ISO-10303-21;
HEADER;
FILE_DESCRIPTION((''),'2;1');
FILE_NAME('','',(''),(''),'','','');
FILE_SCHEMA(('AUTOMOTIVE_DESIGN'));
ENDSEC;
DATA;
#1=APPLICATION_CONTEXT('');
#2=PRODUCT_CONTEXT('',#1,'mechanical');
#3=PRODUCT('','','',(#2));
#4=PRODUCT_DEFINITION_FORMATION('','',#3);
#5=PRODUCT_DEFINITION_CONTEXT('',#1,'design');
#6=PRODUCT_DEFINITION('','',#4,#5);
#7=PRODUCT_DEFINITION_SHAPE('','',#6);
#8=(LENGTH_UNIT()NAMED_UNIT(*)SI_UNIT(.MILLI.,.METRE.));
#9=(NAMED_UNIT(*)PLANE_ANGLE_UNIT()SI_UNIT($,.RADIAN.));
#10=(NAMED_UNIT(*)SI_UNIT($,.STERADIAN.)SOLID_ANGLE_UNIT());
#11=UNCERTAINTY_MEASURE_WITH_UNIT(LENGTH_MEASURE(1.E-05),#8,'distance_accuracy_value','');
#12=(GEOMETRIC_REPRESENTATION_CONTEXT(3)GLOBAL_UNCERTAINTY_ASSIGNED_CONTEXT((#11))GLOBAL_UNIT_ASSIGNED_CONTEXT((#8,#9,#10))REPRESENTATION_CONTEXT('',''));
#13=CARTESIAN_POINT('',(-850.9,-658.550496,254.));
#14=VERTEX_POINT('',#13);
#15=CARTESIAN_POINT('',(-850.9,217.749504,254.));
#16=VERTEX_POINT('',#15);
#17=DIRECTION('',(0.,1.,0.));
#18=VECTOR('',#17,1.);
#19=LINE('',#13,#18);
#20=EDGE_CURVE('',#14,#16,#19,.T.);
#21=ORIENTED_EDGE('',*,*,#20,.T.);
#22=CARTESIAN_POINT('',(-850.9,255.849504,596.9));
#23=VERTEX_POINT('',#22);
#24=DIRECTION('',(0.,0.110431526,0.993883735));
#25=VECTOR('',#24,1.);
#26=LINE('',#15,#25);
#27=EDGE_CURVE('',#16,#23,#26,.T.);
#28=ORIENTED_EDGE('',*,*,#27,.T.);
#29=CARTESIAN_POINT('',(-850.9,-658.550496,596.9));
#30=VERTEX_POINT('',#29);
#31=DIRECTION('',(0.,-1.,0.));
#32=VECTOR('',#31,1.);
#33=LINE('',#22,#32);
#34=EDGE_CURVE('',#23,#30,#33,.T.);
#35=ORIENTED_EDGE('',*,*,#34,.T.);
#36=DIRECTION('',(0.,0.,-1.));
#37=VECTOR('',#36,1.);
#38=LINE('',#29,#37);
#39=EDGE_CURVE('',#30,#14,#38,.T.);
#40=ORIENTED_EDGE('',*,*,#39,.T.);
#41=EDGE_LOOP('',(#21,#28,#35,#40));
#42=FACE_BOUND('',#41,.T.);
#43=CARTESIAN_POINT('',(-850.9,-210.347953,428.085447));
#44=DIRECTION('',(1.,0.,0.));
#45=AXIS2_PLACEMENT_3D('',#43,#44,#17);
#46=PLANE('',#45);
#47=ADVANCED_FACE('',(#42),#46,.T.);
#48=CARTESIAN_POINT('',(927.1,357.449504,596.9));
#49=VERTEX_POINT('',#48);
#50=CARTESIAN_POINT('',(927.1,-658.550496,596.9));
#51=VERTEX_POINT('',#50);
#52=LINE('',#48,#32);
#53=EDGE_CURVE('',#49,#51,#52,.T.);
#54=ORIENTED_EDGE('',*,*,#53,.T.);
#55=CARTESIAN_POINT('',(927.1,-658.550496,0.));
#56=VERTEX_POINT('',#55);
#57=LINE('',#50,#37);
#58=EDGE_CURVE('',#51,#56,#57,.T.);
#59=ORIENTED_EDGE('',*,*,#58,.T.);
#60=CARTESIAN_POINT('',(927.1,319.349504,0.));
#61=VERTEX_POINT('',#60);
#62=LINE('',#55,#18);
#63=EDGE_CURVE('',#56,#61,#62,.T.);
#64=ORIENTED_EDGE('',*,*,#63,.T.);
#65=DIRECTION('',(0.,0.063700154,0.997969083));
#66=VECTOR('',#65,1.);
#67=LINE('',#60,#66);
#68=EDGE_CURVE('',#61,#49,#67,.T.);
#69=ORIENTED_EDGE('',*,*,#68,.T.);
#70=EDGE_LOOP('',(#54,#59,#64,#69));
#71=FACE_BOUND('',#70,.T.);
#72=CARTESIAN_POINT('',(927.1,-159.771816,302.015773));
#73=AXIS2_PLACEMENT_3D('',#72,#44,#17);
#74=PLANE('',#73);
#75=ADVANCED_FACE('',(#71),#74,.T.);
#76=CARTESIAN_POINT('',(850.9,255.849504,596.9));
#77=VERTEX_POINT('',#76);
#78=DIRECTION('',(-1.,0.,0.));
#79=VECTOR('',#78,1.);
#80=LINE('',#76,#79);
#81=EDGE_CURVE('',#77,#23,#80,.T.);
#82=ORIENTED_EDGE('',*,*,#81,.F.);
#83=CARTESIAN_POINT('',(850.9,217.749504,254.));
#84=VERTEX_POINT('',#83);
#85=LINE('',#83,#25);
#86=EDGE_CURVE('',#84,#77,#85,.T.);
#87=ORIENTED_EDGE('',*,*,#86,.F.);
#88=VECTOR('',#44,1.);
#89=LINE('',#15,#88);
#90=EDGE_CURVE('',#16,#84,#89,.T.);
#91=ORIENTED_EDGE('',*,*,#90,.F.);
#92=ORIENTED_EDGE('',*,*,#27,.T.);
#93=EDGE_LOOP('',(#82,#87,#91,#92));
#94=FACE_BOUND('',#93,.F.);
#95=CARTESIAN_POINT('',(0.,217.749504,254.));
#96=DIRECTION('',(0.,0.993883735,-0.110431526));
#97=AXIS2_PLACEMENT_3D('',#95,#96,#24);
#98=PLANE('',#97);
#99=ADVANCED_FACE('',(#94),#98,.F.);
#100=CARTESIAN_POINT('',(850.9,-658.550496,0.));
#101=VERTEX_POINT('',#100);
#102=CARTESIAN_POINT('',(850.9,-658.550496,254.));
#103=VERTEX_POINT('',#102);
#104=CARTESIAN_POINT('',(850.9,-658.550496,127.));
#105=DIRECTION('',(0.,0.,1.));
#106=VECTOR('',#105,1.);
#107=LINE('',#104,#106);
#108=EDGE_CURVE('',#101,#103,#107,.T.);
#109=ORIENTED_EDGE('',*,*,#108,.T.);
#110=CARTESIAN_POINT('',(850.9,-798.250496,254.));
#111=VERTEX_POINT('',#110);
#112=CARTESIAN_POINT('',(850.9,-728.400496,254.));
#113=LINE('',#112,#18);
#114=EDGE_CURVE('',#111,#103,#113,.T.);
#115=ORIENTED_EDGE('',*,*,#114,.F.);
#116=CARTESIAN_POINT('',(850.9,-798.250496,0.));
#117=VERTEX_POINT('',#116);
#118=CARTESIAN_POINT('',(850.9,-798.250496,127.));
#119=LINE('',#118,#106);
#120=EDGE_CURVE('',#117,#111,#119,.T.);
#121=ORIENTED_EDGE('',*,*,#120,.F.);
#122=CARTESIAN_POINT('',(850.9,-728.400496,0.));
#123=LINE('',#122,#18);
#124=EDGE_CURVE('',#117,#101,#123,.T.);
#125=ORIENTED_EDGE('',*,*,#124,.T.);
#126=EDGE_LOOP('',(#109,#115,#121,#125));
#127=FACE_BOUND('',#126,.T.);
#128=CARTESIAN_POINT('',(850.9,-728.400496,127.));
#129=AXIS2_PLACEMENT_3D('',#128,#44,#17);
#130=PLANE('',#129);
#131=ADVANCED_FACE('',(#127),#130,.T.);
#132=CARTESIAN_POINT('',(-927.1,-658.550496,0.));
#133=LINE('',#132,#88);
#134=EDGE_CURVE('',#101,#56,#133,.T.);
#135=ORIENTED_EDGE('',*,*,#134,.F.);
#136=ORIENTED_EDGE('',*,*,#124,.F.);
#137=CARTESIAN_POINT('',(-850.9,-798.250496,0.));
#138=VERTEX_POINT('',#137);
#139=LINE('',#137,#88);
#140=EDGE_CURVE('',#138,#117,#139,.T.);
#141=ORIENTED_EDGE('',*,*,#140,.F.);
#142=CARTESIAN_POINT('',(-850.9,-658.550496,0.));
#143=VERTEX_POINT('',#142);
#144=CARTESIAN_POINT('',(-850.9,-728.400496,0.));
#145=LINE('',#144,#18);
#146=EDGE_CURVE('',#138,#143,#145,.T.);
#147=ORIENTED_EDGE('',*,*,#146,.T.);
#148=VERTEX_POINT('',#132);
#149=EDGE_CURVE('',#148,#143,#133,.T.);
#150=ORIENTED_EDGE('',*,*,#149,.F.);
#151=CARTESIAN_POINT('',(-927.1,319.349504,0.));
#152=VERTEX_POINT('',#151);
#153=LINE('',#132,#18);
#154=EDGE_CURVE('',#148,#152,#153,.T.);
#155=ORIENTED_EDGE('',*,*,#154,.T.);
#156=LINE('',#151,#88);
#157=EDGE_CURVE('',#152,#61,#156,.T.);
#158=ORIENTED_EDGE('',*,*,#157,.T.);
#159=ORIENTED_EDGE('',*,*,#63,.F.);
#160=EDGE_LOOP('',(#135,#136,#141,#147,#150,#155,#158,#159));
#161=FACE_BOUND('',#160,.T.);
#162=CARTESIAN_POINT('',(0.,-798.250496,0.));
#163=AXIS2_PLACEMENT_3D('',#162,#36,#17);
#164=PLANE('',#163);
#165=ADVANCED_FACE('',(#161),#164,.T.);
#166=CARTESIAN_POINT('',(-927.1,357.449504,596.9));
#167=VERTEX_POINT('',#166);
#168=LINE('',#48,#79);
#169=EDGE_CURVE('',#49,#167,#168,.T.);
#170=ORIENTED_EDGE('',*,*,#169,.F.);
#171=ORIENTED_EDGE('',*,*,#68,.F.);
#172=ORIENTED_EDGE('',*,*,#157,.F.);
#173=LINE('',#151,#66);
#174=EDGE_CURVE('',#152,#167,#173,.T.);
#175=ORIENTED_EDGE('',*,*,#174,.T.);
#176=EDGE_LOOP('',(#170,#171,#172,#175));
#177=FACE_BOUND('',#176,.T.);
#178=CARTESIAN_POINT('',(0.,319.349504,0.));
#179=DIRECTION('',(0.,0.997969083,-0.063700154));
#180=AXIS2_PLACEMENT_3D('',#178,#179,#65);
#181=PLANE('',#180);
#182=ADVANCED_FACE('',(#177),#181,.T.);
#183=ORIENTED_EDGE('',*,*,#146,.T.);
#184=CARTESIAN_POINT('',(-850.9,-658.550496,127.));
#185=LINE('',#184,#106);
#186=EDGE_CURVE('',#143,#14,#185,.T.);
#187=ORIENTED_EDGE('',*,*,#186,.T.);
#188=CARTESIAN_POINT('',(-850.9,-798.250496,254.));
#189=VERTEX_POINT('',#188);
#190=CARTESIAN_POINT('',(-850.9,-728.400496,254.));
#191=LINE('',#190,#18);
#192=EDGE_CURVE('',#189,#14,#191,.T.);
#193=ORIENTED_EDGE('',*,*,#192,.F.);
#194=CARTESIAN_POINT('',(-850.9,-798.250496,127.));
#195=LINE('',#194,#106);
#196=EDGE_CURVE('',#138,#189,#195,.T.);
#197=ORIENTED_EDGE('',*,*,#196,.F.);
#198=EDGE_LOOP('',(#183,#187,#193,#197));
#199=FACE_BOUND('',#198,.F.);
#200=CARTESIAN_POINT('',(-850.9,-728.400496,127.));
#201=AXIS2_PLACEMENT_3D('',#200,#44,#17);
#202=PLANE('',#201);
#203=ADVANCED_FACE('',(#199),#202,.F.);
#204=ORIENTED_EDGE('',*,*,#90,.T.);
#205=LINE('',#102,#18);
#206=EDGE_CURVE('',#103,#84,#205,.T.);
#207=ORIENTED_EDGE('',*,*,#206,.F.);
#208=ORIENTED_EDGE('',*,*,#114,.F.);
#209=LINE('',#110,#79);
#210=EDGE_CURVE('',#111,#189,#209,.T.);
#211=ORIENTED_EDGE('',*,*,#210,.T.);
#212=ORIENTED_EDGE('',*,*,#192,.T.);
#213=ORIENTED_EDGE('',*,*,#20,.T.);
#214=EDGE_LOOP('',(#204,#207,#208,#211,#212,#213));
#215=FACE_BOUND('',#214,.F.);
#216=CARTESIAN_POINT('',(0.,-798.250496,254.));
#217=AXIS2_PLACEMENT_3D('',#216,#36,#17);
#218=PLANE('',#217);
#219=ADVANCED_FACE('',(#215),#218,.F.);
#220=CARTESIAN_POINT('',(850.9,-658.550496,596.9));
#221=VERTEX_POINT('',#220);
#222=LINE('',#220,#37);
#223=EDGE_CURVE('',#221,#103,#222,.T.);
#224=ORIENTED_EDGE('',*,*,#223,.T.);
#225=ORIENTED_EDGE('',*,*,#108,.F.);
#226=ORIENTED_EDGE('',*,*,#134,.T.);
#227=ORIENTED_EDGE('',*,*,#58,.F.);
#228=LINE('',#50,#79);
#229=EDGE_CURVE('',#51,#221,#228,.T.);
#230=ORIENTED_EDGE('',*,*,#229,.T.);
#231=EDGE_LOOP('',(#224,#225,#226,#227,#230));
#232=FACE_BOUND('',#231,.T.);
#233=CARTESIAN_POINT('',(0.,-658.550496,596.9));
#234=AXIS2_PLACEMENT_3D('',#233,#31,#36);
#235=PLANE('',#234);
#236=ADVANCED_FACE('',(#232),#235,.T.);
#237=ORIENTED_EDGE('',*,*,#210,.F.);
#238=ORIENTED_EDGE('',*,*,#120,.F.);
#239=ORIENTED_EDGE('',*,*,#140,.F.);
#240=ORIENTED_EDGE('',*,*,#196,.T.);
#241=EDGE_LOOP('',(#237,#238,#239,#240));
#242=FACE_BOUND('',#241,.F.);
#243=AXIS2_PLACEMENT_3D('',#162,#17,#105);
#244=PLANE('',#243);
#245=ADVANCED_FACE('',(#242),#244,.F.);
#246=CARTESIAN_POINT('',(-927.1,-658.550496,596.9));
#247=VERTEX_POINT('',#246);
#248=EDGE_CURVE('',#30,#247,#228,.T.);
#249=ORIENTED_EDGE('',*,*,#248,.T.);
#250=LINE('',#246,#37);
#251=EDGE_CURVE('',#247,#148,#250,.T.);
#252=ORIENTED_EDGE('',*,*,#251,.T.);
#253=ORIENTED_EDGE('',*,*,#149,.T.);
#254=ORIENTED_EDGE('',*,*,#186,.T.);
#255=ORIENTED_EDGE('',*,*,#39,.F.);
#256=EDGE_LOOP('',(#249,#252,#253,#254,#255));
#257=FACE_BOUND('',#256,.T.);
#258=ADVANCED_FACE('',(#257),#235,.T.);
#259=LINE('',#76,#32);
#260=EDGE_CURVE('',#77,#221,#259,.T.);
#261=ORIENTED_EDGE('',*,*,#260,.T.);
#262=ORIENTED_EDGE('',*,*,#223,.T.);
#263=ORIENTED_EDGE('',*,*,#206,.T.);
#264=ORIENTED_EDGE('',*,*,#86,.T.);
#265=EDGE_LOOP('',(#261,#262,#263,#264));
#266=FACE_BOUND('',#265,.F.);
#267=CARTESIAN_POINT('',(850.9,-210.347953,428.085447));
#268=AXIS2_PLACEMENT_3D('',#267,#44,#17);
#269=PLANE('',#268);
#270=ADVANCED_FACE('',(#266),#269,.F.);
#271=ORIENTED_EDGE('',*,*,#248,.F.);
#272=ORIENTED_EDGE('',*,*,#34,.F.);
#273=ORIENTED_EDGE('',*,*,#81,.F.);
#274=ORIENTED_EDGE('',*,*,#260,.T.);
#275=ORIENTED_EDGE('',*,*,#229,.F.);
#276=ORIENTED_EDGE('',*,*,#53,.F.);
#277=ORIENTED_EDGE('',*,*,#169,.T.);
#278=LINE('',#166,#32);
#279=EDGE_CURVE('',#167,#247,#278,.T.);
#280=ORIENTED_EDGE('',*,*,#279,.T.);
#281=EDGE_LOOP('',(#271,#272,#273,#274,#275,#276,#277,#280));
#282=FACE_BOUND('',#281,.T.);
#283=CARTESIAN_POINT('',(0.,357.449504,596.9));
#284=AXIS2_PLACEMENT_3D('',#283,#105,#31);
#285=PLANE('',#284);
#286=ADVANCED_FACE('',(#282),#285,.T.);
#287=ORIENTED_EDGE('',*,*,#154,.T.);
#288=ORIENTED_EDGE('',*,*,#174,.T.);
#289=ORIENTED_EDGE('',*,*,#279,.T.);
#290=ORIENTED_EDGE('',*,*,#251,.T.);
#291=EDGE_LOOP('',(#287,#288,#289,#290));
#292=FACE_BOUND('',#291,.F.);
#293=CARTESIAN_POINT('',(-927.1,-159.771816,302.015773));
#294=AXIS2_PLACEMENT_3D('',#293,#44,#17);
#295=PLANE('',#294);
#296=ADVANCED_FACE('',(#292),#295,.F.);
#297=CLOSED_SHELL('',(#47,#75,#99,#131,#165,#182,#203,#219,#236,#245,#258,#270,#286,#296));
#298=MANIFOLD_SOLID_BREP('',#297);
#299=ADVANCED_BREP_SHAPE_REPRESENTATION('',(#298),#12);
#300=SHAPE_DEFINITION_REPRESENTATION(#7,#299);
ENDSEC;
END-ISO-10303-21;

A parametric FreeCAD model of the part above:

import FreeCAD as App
import Part
import Sketcher
from FreeCAD import Vector
Q = App.Units.Quantity


def add_polygon(sketch, points):
    """Adds a closed chain of lines whose ends are joined by coincident constraints."""
    first, n = sketch.GeometryCount, len(points)
    for a, b in zip(points, points[1:] + points[:1]):
        sketch.addGeometry(Part.LineSegment(App.Vector(*a, 0), App.Vector(*b, 0)), False)
    for i in range(n):
        sketch.addConstraint(Sketcher.Constraint("Coincident", first + i, 2, first + (i + 1) % n, 1))

doc = App.newDocument("Part")
body = doc.addObject("PartDesign::Body", "Body")

# Sketch on YZ plane
sketch1 = body.newObject("Sketcher::SketchObject", "Sketch")
sketch1.AttachmentSupport = (doc.getObject("YZ_Plane"), [""])
sketch1.MapMode = "FlatFace"
add_polygon(sketch1, [(-659, 597), (-659, 0), (319, 0), (357, 597)])  # lines 0-3
sketch1.addConstraint(Sketcher.Constraint("Vertical", 0))
sketch1.addConstraint(Sketcher.Constraint("Horizontal", 1))
sketch1.addConstraint(Sketcher.Constraint("Horizontal", 3))
sketch1.addConstraint(Sketcher.Constraint("PointOnObject", 0, 2, -1))
sketch1.addConstraint(Sketcher.Constraint("DistanceX", 3, 2, 3, 1, Q("40 in")))
sketch1.addConstraint(Sketcher.Constraint("DistanceX", 1, 1, 1, 2, Q("38.5 in")))
sketch1.addConstraint(Sketcher.Constraint("DistanceY", 0, 2, 0, 1, Q("23.5 in")))
sketch1.addConstraint(Sketcher.Constraint("DistanceX", 0, 2, -1, 1, Q("658.550496 mm")))
pad1 = body.newObject("PartDesign::Pad", "Pad")
pad1.Profile = sketch1
pad1.Length = Q("73 in")
pad1.Midplane = True

# Sketch on YZ plane
sketch2 = body.newObject("Sketcher::SketchObject", "Sketch001")
sketch2.AttachmentSupport = (doc.getObject("YZ_Plane"), [""])
sketch2.MapMode = "FlatFace"
add_polygon(sketch2, [(-659, 597), (-659, 254), (218, 254), (256, 597)])  # lines 0-3
sketch2.addConstraint(Sketcher.Constraint("Vertical", 0))
sketch2.addConstraint(Sketcher.Constraint("Horizontal", 1))
sketch2.addConstraint(Sketcher.Constraint("Horizontal", 3))
sketch2.addConstraint(Sketcher.Constraint("DistanceX", 3, 2, 3, 1, Q("36 in")))
sketch2.addConstraint(Sketcher.Constraint("DistanceX", 1, 1, 1, 2, Q("34.5 in")))
sketch2.addConstraint(Sketcher.Constraint("DistanceY", 0, 2, 0, 1, Q("13.5 in")))
sketch2.addConstraint(Sketcher.Constraint("DistanceY", -1, 1, 0, 2, Q("10 in")))
sketch2.addConstraint(Sketcher.Constraint("DistanceX", 0, 2, -1, 1, Q("658.550496 mm")))
pocket1 = body.newObject("PartDesign::Pocket", "Pocket")
pocket1.Profile = sketch2
pocket1.Length = Q("67 in")
pocket1.Midplane = True

# Sketch on YZ plane
sketch3 = body.newObject("Sketcher::SketchObject", "Sketch002")
sketch3.AttachmentSupport = (doc.getObject("YZ_Plane"), [""])
sketch3.MapMode = "FlatFace"
add_polygon(sketch3, [(-798, 254), (-798, 0), (-659, 0), (-659, 254)])  # lines 0-3
sketch3.addConstraint(Sketcher.Constraint("Vertical", 0))
sketch3.addConstraint(Sketcher.Constraint("Horizontal", 1))
sketch3.addConstraint(Sketcher.Constraint("Vertical", 2))
sketch3.addConstraint(Sketcher.Constraint("Horizontal", 3))
sketch3.addConstraint(Sketcher.Constraint("PointOnObject", 0, 2, -1))
sketch3.addConstraint(Sketcher.Constraint("DistanceY", 0, 2, 0, 1, Q("10 in")))
sketch3.addConstraint(Sketcher.Constraint("DistanceX", 1, 1, 1, 2, Q("5.5 in")))
sketch3.addConstraint(Sketcher.Constraint("DistanceX", 0, 2, -1, 1, Q("798.250496 mm")))
pad2 = body.newObject("PartDesign::Pad", "Pad001")
pad2.Profile = sketch3
pad2.Length = Q("67 in")
pad2.Midplane = True

doc.recompute()
